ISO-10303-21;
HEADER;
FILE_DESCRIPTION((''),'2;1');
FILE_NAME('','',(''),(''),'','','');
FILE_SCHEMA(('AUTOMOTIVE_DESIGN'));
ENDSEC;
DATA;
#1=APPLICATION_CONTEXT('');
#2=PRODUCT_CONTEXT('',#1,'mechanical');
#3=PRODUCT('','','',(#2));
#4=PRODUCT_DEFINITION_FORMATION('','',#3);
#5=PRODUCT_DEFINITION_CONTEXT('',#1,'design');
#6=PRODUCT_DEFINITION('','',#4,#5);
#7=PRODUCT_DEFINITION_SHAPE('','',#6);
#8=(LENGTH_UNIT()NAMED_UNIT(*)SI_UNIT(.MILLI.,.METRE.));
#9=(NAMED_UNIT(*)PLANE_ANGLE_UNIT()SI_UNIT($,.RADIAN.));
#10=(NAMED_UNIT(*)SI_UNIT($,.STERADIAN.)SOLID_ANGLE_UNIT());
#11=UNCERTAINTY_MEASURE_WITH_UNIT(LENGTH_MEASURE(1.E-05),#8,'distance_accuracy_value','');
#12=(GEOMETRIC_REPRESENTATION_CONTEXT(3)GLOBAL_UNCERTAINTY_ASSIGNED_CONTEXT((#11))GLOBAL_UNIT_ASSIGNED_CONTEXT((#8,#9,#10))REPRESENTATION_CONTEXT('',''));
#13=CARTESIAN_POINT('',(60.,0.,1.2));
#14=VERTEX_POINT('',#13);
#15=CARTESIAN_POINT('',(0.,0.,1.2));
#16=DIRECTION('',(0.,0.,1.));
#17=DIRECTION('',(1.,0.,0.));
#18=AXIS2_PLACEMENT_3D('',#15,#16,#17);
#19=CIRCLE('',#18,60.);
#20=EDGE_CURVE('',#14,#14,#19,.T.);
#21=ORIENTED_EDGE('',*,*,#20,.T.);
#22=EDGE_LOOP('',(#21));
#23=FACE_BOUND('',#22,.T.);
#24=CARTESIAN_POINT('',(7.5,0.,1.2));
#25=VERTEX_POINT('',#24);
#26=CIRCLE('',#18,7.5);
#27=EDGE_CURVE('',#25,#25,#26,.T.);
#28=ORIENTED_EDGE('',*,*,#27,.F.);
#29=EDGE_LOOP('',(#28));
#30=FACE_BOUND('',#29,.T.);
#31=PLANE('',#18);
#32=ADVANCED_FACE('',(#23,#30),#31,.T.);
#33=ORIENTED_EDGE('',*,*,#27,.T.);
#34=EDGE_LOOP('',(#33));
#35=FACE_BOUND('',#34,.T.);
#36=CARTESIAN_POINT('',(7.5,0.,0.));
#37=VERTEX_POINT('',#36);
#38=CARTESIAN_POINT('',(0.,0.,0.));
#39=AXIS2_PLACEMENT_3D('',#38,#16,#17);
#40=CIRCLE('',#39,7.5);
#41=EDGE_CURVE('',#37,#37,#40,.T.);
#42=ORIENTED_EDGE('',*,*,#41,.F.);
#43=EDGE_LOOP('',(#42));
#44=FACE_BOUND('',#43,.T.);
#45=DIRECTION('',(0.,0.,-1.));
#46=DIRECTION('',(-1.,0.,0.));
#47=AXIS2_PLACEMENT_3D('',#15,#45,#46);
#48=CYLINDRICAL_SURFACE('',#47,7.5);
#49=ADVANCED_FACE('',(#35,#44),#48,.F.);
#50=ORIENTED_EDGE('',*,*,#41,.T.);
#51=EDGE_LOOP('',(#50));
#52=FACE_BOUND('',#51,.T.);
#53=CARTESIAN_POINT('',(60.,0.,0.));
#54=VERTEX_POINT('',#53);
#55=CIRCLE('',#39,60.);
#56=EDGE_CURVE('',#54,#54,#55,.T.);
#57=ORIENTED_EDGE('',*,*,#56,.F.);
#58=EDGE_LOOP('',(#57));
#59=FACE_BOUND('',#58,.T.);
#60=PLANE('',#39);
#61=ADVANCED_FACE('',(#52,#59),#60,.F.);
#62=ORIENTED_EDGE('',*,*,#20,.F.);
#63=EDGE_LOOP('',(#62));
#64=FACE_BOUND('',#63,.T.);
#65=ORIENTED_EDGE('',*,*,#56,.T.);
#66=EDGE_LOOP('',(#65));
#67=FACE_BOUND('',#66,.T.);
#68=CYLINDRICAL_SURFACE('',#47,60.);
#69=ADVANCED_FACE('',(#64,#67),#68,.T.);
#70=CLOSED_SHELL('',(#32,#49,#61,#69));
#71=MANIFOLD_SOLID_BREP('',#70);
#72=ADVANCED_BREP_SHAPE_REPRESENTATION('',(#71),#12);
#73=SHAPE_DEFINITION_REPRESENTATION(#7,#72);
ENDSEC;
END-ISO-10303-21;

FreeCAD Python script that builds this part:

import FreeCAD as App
import Part
import Sketcher

doc = App.newDocument("Part")
body = doc.addObject("PartDesign::Body", "Body")

# Sketch on XY plane
sketch1 = doc.addObject("Sketcher::SketchObject", "Sketch")
body.addObject(sketch1)
sketch1.AttachmentSupport = (doc.XY_Plane, [""])
sketch1.MapMode = "FlatFace"
sketch1.addGeometry(Part.Circle(App.Vector(0, 0, 0), App.Vector(0, 0, 1), 60), False)
sketch1.addGeometry(Part.Circle(App.Vector(0, 0, 0), App.Vector(0, 0, 1), 7.5), False)
sketch1.addConstraint(Sketcher.Constraint("Coincident", 0, 3, -1, 1))
sketch1.addConstraint(Sketcher.Constraint("Coincident", 1, 3, -1, 1))
sketch1.addConstraint(Sketcher.Constraint("Diameter", 0, 120.0))
sketch1.addConstraint(Sketcher.Constraint("Diameter", 1, 15.0))
pad1 = doc.addObject("PartDesign::Pad", "Pad")
body.addObject(pad1)
pad1.Profile = sketch1
pad1.Length = 1.2

doc.recompute()
